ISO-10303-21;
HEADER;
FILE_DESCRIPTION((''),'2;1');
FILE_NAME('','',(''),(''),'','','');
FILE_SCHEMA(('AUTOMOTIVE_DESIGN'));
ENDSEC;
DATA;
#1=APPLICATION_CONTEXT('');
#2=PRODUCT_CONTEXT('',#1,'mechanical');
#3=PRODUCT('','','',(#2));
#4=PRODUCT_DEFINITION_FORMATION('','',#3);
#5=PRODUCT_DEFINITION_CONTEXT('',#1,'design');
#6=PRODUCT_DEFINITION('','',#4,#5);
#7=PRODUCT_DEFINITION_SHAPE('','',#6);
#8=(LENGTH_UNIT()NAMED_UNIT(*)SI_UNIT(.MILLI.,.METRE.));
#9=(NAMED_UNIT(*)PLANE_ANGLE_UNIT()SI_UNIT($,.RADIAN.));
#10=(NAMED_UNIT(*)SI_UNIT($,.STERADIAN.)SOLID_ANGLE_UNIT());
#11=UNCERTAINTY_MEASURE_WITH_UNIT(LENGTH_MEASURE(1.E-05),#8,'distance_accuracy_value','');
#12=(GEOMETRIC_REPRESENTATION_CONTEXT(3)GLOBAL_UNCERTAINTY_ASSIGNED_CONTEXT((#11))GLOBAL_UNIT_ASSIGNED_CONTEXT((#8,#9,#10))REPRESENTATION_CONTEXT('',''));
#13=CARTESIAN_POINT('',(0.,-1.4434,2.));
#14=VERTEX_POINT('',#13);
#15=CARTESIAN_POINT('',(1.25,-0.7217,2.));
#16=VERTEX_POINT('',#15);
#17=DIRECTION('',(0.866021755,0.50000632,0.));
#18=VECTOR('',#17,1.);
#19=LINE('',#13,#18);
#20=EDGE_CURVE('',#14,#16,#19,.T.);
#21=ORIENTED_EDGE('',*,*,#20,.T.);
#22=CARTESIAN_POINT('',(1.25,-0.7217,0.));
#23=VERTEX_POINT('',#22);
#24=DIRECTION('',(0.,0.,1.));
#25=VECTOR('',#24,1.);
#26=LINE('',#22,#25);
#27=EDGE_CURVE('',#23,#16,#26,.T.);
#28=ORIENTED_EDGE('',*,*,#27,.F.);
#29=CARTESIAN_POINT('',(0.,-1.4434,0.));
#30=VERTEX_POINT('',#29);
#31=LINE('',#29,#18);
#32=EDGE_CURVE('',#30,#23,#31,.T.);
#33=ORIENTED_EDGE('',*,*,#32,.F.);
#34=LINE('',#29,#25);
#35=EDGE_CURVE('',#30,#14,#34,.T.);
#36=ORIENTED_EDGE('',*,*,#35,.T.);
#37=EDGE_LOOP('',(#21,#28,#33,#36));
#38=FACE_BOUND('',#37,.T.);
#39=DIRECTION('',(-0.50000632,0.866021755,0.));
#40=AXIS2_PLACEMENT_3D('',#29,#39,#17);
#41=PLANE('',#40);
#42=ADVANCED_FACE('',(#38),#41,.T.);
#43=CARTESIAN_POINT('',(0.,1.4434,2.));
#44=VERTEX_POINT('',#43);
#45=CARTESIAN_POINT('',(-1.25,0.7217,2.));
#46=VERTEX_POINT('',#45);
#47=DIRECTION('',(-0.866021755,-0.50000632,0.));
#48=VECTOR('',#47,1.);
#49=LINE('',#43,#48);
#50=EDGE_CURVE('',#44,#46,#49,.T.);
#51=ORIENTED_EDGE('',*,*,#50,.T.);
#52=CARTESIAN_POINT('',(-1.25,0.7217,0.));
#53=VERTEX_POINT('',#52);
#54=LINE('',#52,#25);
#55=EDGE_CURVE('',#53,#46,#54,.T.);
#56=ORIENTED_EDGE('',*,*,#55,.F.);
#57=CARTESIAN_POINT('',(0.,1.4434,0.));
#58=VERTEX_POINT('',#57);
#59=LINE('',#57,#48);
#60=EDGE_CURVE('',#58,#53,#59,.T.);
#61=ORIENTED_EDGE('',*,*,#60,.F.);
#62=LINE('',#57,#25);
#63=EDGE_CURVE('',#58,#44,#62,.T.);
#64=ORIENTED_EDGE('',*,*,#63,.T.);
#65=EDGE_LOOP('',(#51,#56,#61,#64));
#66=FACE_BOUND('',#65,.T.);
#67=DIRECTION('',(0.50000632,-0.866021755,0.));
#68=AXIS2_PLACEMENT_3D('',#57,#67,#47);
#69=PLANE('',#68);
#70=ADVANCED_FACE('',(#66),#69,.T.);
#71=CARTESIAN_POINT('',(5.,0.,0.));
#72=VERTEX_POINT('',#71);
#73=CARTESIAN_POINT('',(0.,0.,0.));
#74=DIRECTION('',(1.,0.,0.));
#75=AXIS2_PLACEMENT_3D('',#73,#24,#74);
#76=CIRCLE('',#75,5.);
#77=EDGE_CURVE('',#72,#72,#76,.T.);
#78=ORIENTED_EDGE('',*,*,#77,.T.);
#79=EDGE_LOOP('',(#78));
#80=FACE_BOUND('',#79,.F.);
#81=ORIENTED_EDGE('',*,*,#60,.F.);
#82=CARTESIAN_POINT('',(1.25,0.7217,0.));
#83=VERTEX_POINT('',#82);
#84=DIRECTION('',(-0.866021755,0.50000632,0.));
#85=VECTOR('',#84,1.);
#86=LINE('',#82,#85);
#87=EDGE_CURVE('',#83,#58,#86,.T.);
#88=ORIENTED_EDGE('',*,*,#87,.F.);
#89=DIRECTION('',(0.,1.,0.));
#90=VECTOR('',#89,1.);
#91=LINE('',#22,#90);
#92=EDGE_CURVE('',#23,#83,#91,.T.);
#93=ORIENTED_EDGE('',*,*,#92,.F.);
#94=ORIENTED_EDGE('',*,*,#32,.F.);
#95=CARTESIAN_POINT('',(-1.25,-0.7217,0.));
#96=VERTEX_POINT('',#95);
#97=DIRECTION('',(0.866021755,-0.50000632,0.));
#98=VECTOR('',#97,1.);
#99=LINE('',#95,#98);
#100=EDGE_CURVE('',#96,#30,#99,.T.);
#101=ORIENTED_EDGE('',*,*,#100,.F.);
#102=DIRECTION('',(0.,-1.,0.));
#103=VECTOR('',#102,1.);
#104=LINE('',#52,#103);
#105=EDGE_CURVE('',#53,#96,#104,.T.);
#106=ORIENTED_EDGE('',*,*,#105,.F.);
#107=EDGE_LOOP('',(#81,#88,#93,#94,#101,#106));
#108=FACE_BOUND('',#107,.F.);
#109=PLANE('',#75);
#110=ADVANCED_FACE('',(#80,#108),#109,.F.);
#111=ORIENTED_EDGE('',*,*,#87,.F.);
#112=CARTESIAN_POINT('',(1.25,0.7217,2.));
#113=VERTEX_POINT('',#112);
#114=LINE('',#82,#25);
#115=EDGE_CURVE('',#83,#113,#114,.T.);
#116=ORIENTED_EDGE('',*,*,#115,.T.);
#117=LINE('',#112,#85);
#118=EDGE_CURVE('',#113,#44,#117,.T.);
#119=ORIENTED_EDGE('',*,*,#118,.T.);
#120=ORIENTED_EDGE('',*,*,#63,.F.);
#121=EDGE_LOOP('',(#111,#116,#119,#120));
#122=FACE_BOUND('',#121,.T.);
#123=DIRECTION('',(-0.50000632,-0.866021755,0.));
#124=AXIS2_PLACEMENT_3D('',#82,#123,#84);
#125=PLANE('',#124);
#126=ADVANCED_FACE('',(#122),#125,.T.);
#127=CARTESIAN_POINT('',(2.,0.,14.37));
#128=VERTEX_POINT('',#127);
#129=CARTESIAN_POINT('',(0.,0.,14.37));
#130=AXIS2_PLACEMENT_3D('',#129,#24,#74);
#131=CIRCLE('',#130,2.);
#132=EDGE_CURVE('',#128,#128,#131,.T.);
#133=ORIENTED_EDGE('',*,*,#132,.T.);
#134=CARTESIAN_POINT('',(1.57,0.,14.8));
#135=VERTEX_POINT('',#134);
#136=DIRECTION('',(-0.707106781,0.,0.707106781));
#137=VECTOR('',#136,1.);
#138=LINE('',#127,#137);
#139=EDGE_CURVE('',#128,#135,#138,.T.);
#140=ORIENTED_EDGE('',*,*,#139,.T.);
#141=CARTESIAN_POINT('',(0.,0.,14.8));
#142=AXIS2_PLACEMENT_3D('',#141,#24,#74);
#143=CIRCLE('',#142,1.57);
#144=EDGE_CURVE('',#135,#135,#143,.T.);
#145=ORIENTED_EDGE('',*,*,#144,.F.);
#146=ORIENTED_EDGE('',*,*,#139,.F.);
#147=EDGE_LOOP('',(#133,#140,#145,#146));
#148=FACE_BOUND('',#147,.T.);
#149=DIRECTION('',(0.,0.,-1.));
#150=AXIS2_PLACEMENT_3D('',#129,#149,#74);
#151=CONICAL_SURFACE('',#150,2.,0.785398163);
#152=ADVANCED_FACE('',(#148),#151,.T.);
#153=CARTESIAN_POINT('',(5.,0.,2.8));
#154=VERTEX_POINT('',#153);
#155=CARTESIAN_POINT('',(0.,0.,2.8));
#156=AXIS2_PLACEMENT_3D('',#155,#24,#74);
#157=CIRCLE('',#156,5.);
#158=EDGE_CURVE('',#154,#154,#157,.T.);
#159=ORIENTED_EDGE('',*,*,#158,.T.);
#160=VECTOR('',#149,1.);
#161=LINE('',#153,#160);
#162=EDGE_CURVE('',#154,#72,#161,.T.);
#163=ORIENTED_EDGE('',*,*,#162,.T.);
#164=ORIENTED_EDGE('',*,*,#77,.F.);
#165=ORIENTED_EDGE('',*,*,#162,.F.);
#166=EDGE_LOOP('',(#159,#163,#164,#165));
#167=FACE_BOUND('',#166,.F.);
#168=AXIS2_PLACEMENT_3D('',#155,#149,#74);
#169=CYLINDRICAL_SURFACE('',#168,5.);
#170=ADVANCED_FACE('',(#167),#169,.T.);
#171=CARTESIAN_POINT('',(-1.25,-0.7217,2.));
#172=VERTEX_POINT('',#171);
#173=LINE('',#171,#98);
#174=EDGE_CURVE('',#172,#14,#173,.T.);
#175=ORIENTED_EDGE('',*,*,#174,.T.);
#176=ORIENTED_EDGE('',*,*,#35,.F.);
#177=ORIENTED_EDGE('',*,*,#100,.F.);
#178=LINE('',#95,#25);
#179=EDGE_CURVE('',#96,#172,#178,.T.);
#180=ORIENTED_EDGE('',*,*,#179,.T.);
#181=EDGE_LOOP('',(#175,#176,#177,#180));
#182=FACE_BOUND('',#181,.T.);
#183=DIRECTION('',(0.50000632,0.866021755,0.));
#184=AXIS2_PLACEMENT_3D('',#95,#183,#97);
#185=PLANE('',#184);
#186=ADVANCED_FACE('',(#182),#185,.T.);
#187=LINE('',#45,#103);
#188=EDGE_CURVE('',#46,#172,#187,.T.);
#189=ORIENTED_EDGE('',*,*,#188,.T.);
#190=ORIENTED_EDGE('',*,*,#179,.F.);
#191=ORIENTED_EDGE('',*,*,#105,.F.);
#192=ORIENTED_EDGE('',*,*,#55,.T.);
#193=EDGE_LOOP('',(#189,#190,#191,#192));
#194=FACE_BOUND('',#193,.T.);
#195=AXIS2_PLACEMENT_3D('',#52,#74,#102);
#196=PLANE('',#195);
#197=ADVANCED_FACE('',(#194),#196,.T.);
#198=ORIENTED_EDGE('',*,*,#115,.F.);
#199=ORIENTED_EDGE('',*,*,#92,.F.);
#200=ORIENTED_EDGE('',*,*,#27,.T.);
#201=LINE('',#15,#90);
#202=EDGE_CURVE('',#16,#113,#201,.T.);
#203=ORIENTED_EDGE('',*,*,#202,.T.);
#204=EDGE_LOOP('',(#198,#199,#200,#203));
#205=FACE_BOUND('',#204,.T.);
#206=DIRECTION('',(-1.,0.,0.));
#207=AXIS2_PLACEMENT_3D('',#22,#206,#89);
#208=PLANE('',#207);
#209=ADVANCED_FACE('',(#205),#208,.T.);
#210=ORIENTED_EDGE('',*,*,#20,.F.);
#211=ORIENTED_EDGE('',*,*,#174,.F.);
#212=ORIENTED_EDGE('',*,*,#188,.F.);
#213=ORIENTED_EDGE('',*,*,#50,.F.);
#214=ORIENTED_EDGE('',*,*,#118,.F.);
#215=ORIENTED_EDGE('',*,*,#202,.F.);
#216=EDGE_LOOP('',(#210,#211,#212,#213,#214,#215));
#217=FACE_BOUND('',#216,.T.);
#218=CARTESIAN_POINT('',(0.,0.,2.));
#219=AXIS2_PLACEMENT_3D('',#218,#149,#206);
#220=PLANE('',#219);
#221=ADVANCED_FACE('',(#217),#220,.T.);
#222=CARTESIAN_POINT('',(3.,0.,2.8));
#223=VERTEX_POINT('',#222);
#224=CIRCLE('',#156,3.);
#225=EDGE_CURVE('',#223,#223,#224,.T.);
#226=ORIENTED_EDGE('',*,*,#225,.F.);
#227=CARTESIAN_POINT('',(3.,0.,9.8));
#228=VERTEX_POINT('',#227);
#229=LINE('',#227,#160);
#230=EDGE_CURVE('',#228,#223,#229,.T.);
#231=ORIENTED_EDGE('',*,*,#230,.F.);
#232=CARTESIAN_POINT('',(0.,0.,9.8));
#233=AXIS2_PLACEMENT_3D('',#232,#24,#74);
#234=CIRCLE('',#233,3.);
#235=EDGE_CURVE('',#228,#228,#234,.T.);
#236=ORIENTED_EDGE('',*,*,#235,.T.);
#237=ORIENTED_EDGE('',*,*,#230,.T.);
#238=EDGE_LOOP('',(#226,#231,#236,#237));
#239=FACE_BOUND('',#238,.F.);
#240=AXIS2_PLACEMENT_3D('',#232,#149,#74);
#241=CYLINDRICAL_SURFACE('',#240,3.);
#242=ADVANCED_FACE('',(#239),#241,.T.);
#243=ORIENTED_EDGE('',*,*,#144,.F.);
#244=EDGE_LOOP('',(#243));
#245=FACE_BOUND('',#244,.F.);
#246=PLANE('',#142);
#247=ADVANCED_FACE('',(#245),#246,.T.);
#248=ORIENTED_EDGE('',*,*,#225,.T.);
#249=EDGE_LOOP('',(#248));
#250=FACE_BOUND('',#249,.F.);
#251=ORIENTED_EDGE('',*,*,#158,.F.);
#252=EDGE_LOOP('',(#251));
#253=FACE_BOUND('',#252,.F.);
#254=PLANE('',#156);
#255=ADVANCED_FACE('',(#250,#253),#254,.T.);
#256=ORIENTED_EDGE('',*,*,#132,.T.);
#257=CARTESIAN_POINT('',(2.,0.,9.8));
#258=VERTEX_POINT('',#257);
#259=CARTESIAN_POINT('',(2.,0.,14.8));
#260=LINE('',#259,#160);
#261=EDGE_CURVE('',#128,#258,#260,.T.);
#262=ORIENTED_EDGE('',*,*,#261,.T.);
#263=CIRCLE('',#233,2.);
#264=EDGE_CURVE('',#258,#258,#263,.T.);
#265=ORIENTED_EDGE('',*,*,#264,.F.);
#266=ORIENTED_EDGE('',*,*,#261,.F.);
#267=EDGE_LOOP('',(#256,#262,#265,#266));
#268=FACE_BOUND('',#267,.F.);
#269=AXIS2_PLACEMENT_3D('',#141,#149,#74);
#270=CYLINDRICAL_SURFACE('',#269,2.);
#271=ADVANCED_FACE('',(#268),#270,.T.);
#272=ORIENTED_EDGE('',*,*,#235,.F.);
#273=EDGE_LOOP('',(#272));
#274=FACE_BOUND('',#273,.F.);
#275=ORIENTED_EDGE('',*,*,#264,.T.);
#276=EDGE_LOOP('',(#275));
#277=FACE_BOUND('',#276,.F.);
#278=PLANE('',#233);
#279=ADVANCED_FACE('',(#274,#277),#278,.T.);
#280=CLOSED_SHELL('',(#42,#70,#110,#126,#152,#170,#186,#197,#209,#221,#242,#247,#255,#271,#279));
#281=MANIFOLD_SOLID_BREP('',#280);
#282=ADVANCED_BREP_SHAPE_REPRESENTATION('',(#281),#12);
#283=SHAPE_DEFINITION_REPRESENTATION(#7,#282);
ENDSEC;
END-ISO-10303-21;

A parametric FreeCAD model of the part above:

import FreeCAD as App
import Part
import Sketcher

V = App.Vector
Q = App.Units.Quantity


def edges_at(feature, points):
    """Names of the edges that pass closest to the given points."""
    edges = feature.Shape.Edges
    near = lambda p: min(range(len(edges)), key=lambda i: edges[i].distToShape(Part.Vertex(*p))[0])
    return sorted({f"Edge{near(p) + 1}" for p in points})


def add_polygon(sketch, points):
    """Adds a closed chain of lines whose ends are joined by coincident constraints."""
    first, n = sketch.GeometryCount, len(points)
    for a, b in zip(points, points[1:] + points[:1]):
        sketch.addGeometry(Part.LineSegment(App.Vector(*a, 0), App.Vector(*b, 0)), False)
    for i in range(n):
        sketch.addConstraint(Sketcher.Constraint("Coincident", first + i, 2, first + (i + 1) % n, 1))

doc = App.newDocument("Part")
body = doc.addObject("PartDesign::Body", "Body")

# Sketch on XZ plane
sketch1 = body.newObject("Sketcher::SketchObject", "Sketch")
sketch1.AttachmentSupport = (doc.getObject("XZ_Plane"), [""])
sketch1.MapMode = "FlatFace"
add_polygon(sketch1, [(5, 0), (0, 0), (0, 14.8), (2, 14.8), (2, 9.8), (3, 9.8), (3, 2.8), (5, 2.8)])  # lines 0-7
sketch1.addConstraint(Sketcher.Constraint("Horizontal", 0))
sketch1.addConstraint(Sketcher.Constraint("Vertical", 1))
sketch1.addConstraint(Sketcher.Constraint("Horizontal", 2))
sketch1.addConstraint(Sketcher.Constraint("Vertical", 3))
sketch1.addConstraint(Sketcher.Constraint("Horizontal", 4))
sketch1.addConstraint(Sketcher.Constraint("Vertical", 5))
sketch1.addConstraint(Sketcher.Constraint("Horizontal", 6))
sketch1.addConstraint(Sketcher.Constraint("Vertical", 7))
sketch1.addConstraint(Sketcher.Constraint("Coincident", 0, 2, -1, 1))
sketch1.addConstraint(Sketcher.Constraint("Equal", 2, 6))
sketch1.addConstraint(Sketcher.Constraint("Equal", 0, 3))
sketch1.addConstraint(Sketcher.Constraint("DistanceX", 0, 2, 0, 1, Q("5 mm")))
sketch1.addConstraint(Sketcher.Constraint("DistanceY", 5, 2, 5, 1, Q("7 mm")))
sketch1.addConstraint(Sketcher.Constraint("DistanceY", 7, 2, 7, 1, Q("2.8 mm")))
sketch1.addConstraint(Sketcher.Constraint("DistanceX", 2, 1, 2, 2, Q("2 mm")))
revolution = body.newObject("PartDesign::Revolution", "Revolution")
revolution.Profile = sketch1
revolution.ReferenceAxis = (sketch1, ["V_Axis"])
revolution.Angle = 360

# Sketch on XY plane
sketch2 = body.newObject("Sketcher::SketchObject", "Sketch001")
sketch2.AttachmentSupport = (doc.getObject("XY_Plane"), [""])
sketch2.MapMode = "FlatFace"
add_polygon(sketch2, [(-1.25, 0.7217), (0, 1.4434), (1.25, 0.7217), (1.25, -0.7217), (0, -1.4434), (-1.25, -0.7217)])  # lines 0-5
sketch2.addConstraint(Sketcher.Constraint("Vertical", 2))
sketch2.addConstraint(Sketcher.Constraint("Vertical", 5))
sketch2.addConstraint(Sketcher.Constraint("Symmetric", 0, 2, 3, 2, -1, 1))
sketch2.addConstraint(Sketcher.Constraint("Symmetric", 1, 2, 4, 2, -1, 1))
sketch2.addConstraint(Sketcher.Constraint("PointOnObject", 0, 2, -2))
sketch2.addConstraint(Sketcher.Constraint("Parallel", 0, 3))
sketch2.addConstraint(Sketcher.Constraint("Horizontal", 2, 2, 4, 2))
sketch2.addConstraint(Sketcher.Constraint("DistanceX", 4, 2, 2, 2, Q("2.5 mm")))
sketch2.addConstraint(Sketcher.Constraint("Angle", 0, Q("30.0004 deg")))
sketch2.addConstraint(Sketcher.Constraint("DistanceY", 2, 2, 2, 1, Q("1.4434 mm")))
pocket1 = body.newObject("PartDesign::Pocket", "Pocket")
pocket1.Profile = sketch2
pocket1.Length = 2
pocket1.Reversed = True
doc.recompute()

chamfer = body.newObject("PartDesign::Chamfer", "Chamfer")
chamfer.Base = (pocket1, edges_at(pocket1, [(-2, 0, 14.8)]))
chamfer.Size = 0.43

doc.recompute()
